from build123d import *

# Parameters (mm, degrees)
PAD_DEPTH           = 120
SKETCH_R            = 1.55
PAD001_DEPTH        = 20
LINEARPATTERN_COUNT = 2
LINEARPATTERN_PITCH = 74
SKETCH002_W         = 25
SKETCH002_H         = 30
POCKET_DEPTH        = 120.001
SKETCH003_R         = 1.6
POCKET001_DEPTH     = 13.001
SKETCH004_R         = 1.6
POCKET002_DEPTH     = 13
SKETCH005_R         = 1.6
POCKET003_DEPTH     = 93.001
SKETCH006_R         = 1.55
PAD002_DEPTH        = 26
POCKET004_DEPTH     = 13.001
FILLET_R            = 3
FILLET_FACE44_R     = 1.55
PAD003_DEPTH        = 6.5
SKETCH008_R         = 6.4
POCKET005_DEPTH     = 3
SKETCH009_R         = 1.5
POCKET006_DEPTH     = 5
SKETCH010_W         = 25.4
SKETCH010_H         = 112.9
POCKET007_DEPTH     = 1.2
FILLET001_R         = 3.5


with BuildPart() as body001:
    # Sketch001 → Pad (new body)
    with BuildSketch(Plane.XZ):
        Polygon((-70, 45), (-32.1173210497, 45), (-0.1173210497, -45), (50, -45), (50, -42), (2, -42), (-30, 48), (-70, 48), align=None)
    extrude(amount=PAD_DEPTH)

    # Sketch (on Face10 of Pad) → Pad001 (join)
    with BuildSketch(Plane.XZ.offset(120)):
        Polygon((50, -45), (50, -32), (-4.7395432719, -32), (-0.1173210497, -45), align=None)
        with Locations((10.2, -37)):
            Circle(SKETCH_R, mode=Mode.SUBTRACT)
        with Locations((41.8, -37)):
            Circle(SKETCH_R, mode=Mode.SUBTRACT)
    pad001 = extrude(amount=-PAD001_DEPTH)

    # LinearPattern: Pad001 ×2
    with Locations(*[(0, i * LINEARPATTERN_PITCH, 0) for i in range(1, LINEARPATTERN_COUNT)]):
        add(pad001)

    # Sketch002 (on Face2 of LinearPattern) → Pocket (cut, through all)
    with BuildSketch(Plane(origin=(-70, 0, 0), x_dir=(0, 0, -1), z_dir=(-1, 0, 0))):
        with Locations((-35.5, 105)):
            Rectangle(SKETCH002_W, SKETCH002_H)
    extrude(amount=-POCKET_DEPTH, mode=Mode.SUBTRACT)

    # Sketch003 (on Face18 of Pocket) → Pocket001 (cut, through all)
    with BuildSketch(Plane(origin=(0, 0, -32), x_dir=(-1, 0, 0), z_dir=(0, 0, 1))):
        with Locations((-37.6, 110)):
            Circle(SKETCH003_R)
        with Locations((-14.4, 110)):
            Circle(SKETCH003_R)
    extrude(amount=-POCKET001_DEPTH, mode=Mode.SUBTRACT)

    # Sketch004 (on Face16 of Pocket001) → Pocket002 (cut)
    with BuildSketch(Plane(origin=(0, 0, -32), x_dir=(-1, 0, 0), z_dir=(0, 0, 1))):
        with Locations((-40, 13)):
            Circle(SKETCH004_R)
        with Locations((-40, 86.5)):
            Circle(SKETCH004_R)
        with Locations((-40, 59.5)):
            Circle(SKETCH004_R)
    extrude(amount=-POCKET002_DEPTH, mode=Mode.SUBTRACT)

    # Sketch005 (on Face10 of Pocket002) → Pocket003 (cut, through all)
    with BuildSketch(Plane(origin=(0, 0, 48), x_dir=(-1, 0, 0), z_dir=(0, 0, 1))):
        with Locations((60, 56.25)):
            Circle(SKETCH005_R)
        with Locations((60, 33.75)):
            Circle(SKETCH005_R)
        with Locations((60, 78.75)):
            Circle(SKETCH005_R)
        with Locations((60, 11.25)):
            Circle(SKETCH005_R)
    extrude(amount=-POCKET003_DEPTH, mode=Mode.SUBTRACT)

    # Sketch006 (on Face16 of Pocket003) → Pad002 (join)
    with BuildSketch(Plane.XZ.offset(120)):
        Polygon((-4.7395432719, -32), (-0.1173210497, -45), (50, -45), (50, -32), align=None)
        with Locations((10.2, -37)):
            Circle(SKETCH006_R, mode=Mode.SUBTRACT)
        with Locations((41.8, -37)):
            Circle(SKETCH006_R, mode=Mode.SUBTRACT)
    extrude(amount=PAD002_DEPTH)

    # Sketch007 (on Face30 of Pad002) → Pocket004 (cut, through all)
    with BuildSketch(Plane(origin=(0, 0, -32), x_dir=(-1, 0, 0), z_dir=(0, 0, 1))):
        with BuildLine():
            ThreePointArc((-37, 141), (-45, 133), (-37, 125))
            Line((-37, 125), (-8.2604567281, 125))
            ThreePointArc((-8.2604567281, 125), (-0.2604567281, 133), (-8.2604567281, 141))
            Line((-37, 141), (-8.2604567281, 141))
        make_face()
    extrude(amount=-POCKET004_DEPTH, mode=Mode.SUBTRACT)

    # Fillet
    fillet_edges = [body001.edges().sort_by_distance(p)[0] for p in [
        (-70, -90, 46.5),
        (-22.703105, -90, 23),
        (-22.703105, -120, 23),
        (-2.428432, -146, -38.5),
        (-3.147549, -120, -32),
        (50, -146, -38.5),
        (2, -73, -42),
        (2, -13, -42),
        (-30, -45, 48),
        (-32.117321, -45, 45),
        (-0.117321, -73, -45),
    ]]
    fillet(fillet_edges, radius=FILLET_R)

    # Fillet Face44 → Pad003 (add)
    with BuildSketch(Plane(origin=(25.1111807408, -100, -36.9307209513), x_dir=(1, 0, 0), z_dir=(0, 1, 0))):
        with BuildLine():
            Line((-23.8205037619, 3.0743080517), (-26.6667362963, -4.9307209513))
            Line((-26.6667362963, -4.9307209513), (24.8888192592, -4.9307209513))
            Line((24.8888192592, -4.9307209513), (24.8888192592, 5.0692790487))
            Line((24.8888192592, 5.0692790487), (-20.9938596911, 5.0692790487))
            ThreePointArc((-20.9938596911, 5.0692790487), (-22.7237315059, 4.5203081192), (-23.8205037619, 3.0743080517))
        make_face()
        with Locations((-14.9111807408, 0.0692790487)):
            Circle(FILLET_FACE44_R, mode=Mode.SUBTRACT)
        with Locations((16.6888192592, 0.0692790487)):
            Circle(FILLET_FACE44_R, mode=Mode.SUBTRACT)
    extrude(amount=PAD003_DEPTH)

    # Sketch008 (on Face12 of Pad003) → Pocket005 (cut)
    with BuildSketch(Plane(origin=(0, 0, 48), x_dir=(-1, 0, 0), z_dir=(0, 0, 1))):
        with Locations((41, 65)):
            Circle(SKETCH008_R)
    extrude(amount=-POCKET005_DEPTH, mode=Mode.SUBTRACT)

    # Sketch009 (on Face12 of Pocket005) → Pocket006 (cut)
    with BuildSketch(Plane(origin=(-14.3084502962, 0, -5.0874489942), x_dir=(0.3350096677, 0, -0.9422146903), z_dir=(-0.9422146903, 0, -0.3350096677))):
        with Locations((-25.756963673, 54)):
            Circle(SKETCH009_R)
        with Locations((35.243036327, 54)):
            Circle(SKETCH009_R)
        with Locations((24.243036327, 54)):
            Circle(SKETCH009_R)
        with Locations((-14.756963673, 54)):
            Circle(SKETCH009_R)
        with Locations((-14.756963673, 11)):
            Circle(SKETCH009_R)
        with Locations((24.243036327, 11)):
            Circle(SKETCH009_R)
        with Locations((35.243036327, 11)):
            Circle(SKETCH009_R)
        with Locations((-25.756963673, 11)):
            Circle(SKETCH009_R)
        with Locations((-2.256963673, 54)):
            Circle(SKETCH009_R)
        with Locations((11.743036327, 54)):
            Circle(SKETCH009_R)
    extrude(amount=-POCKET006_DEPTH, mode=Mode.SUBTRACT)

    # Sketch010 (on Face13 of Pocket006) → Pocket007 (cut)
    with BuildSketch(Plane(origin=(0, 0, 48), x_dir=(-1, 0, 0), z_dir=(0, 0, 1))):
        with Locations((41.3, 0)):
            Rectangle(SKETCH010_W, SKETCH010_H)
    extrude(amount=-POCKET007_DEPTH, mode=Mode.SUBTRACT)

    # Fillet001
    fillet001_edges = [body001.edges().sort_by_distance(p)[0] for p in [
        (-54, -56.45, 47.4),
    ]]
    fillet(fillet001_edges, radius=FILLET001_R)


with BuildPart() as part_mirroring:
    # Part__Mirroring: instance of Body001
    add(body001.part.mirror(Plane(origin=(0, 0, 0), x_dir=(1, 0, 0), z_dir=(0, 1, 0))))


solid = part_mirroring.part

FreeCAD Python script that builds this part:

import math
import FreeCAD as App
import Part
import Sketcher

V = App.Vector


def edges_at(feature, points):
    """Names of the edges that pass closest to the given points."""
    edges = feature.Shape.Edges
    near = lambda p: min(range(len(edges)), key=lambda i: edges[i].distToShape(Part.Vertex(*p))[0])
    return sorted({f"Edge{near(p) + 1}" for p in points})

doc = App.newDocument("Part")
body = doc.addObject("PartDesign::Body", "Body")

# Sketch on XZ plane
sketch1 = body.newObject("Sketcher::SketchObject", "Sketch")
sketch1.AttachmentSupport = (doc.getObject("XZ_Plane"), [""])
sketch1.MapMode = "FlatFace"
sketch1.addGeometry([
    Part.LineSegment(V(-70, 45, 0), V(-32.117321, 45, 0)),  # 0
    Part.LineSegment(V(-32.117321, 45, 0), V(-0.117321, -45, 0)),  # 1
    Part.LineSegment(V(-0.117321, -45, 0), V(50, -45, 0)),  # 2
    Part.LineSegment(V(50, -45, 0), V(50, -42, 0)),  # 3
    Part.LineSegment(V(50, -42, 0), V(2, -42, 0)),  # 4
    Part.LineSegment(V(2, -42, 0), V(-30, 48, 0)),  # 5
    Part.LineSegment(V(-30, 48, 0), V(-70, 48, 0)),  # 6
    Part.LineSegment(V(-70, 48, 0), V(-70, 45, 0)),  # 7
], False)
sketch1.addConstraint([
    Sketcher.Constraint("Coincident", 0, 2, 1, 1),
    Sketcher.Constraint("Coincident", 1, 2, 2, 1),
    Sketcher.Constraint("Coincident", 2, 2, 3, 1),
    Sketcher.Constraint("Coincident", 3, 2, 4, 1),
    Sketcher.Constraint("Coincident", 4, 2, 5, 1),
    Sketcher.Constraint("Coincident", 5, 2, 6, 1),
    Sketcher.Constraint("Coincident", 6, 2, 7, 1),
    Sketcher.Constraint("Coincident", 7, 2, 0, 1),
    Sketcher.Constraint("Horizontal", 0),
    Sketcher.Constraint("Horizontal", 2),
    Sketcher.Constraint("Vertical", 3),
    Sketcher.Constraint("Horizontal", 4),
    Sketcher.Constraint("Horizontal", 6),
    Sketcher.Constraint("Vertical", 7),
    Sketcher.Constraint("Parallel", 1, 5),
    Sketcher.Constraint("Equal", 3, 7),
    Sketcher.Constraint("DistanceX", 4, 2, 4, 1, 48.0),
    Sketcher.Constraint("DistanceX", 6, 2, 6, 1, 40.0),
    Sketcher.Constraint("DistanceY", 3, 1, 3, 2, 3.0),
    Sketcher.Constraint("DistanceY", -1, 1, 0, 2, 45.0),
    Sketcher.Constraint("DistanceY", 1, 2, -1, 1, 45.0),
    Sketcher.Constraint("DistanceX", -1, 1, 2, 2, 50.0),
    Sketcher.Constraint("DistanceX", 5, 2, -1, 1, 30.0),
    Sketcher.Constraint("DistanceX", 0, 1, 0, 2, 37.882679),
])
pad1 = body.newObject("PartDesign::Pad", "Pad")
pad1.Profile = sketch1
pad1.Length = 120

# Sketch on XZ plane
sketch2 = body.newObject("Sketcher::SketchObject", "Sketch001")
sketch2.AttachmentSupport = (doc.getObject("XZ_Plane"), [""])
sketch2.MapMode = "FlatFace"
sketch2.AttachmentOffset = App.Placement(V(0, 0, 120), App.Rotation())
sketch2.addGeometry([
    Part.LineSegment(V(50, -45, 0), V(50, -32, 0)),  # 0
    Part.LineSegment(V(50, -32, 0), V(-4.739543, -32, 0)),  # 1
    Part.LineSegment(V(-4.739543, -32, 0), V(-0.117321, -45, 0)),  # 2
    Part.LineSegment(V(-0.117321, -45, 0), V(50, -45, 0)),  # 3
    Part.Circle(V(10.2, -37, 0), V(0, 0, 1), 1.55),  # 4
    Part.Circle(V(41.8, -37, 0), V(0, 0, 1), 1.55),  # 5
], False)
sketch2.addConstraint([
    Sketcher.Constraint("Coincident", 0, 2, 1, 1),
    Sketcher.Constraint("Coincident", 1, 2, 2, 1),
    Sketcher.Constraint("Coincident", 2, 2, 3, 1),
    Sketcher.Constraint("Coincident", 3, 2, 0, 1),
    Sketcher.Constraint("Vertical", 0),
    Sketcher.Constraint("Horizontal", 1),
    Sketcher.Constraint("Horizontal", 3),
    Sketcher.Constraint("Equal", 4, 5),
    Sketcher.Constraint("Horizontal", 4, 3, 5, 3),
    Sketcher.Constraint("Diameter", 4, 3.1),
    Sketcher.Constraint("DistanceY", 0, 1, 0, 2, 13.0),
    Sketcher.Constraint("DistanceY", 4, 3, -1, 1, 37.0),
    Sketcher.Constraint("DistanceX", -1, 1, 0, 2, 50.0),
    Sketcher.Constraint("DistanceY", 0, 2, -1, 1, 32.0),
    Sketcher.Constraint("DistanceX", -1, 1, 4, 3, 10.2),
    Sketcher.Constraint("DistanceX", -1, 1, 5, 3, 41.8),
    Sketcher.Constraint("DistanceX", 3, 1, 3, 2, 50.117321),
    Sketcher.Constraint("Distance", 2, 13.79728),
])
pad2 = body.newObject("PartDesign::Pad", "Pad001")
pad2.Profile = sketch2
pad2.Length = 20
pad2.Reversed = True
doc.recompute()

linearpattern = body.newObject("PartDesign::LinearPattern", "LinearPattern")
linearpattern.Originals = [pad2]
linearpattern.Direction = (doc.getObject("Y_Axis"), [""])
linearpattern.Mode = "offset"
linearpattern.Offset = 74
linearpattern.Occurrences = 2
body.Tip = linearpattern

# Sketch on YZ plane
sketch3 = body.newObject("Sketcher::SketchObject", "Sketch002")
sketch3.AttachmentSupport = (doc.getObject("YZ_Plane"), [""])
sketch3.MapMode = "FlatFace"
sketch3.AttachmentOffset = App.Placement(V(0, 0, -70), App.Rotation())
sketch3.addGeometry([
    Part.LineSegment(V(-120, 48, 0), V(-90, 48, 0)),
    Part.LineSegment(V(-90, 48, 0), V(-90, 23, 0)),
    Part.LineSegment(V(-90, 23, 0), V(-120, 23, 0)),
    Part.LineSegment(V(-120, 23, 0), V(-120, 48, 0)),
], False)
sketch3.addConstraint([
    Sketcher.Constraint("Coincident", 0, 2, 1, 1),
    Sketcher.Constraint("Coincident", 1, 2, 2, 1),
    Sketcher.Constraint("Coincident", 2, 2, 3, 1),
    Sketcher.Constraint("Coincident", 3, 2, 0, 1),
    Sketcher.Constraint("Horizontal", 0),
    Sketcher.Constraint("Vertical", 1),
    Sketcher.Constraint("Horizontal", 2),
    Sketcher.Constraint("Vertical", 3),
    Sketcher.Constraint("DistanceX", 0, 1, 0, 2, 30.0),
    Sketcher.Constraint("DistanceY", 1, 2, 1, 1, 25.0),
    Sketcher.Constraint("DistanceX", 0, 2, -1, 1, 90.0),
    Sketcher.Constraint("DistanceY", -1, 1, 0, 2, 48.0),
])
pocket1 = body.newObject("PartDesign::Pocket", "Pocket")
pocket1.Profile = sketch3
pocket1.Type = "ThroughAll"
pocket1.Reversed = True

# Sketch on XY plane
sketch4 = body.newObject("Sketcher::SketchObject", "Sketch003")
sketch4.AttachmentSupport = (doc.getObject("XY_Plane"), [""])
sketch4.MapMode = "FlatFace"
sketch4.AttachmentOffset = App.Placement(V(0, 0, -32), App.Rotation())
sketch4.addGeometry([
    Part.Circle(V(37.6, -110, 0), V(0, 0, 1), 1.6),
    Part.Circle(V(14.4, -110, 0), V(0, 0, 1), 1.6),
], False)
sketch4.addConstraint([
    Sketcher.Constraint("Equal", 0, 1),
    Sketcher.Constraint("Horizontal", 0, 3, 1, 3),
    Sketcher.Constraint("Diameter", 0, 3.2),
    Sketcher.Constraint("DistanceY", 0, 3, -1, 1, 110.0),
    Sketcher.Constraint("DistanceX", -1, 1, 0, 3, 37.6),
    Sketcher.Constraint("DistanceX", -1, 1, 1, 3, 14.4),
])
pocket2 = body.newObject("PartDesign::Pocket", "Pocket001")
pocket2.Profile = sketch4
pocket2.Type = "ThroughAll"

# Sketch on XY plane
sketch5 = body.newObject("Sketcher::SketchObject", "Sketch004")
sketch5.AttachmentSupport = (doc.getObject("XY_Plane"), [""])
sketch5.MapMode = "FlatFace"
sketch5.AttachmentOffset = App.Placement(V(0, 0, -32), App.Rotation())
sketch5.addGeometry([
    Part.Circle(V(40, -13, 0), V(0, 0, 1), 1.6),
    Part.Circle(V(40, -86.5, 0), V(0, 0, 1), 1.6),
    Part.Circle(V(40, -59.5, 0), V(0, 0, 1), 1.6),
], False)
sketch5.addConstraint([
    Sketcher.Constraint("Equal", 0, 1),
    Sketcher.Constraint("Equal", 1, 2),
    Sketcher.Constraint("Vertical", 0, 3, 1, 3),
    Sketcher.Constraint("Vertical", 1, 3, 2, 3),
    Sketcher.Constraint("Diameter", 0, 3.2),
    Sketcher.Constraint("DistanceX", -1, 1, 0, 3, 40.0),
    Sketcher.Constraint("DistanceY", 0, 3, -1, 1, 13.0),
    Sketcher.Constraint("DistanceY", 1, 3, 2, 3, 27.0),
    Sketcher.Constraint("DistanceY", 1, 3, -1, 1, 86.5),
])
pocket3 = body.newObject("PartDesign::Pocket", "Pocket002")
pocket3.Profile = sketch5
pocket3.Length = 13

# Sketch on XY plane
sketch6 = body.newObject("Sketcher::SketchObject", "Sketch005")
sketch6.AttachmentSupport = (doc.getObject("XY_Plane"), [""])
sketch6.MapMode = "FlatFace"
sketch6.AttachmentOffset = App.Placement(V(0, 0, 48), App.Rotation())
sketch6.addGeometry([
    Part.Circle(V(-60, -56.25, 0), V(0, 0, 1), 1.6),
    Part.Circle(V(-60, -33.75, 0), V(0, 0, 1), 1.6),
    Part.Circle(V(-60, -78.75, 0), V(0, 0, 1), 1.6),
    Part.Circle(V(-60, -11.25, 0), V(0, 0, 1), 1.6),
], False)
sketch6.addConstraint([
    Sketcher.Constraint("Equal", 0, 1),
    Sketcher.Constraint("Equal", 1, 2),
    Sketcher.Constraint("Equal", 2, 3),
    Sketcher.Constraint("Vertical", 0, 3, 1, 3),
    Sketcher.Constraint("Vertical", 1, 3, 2, 3),
    Sketcher.Constraint("Vertical", 2, 3, 3, 3),
    Sketcher.Constraint("Diameter", 0, 3.2),
    Sketcher.Constraint("DistanceX", 0, 3, -1, 1, 60.0),
    Sketcher.Constraint("DistanceY", 2, 3, 1, 3, 45.0),
    Sketcher.Constraint("DistanceY", 0, 3, 3, 3, 45.0),
    Sketcher.Constraint("DistanceY", 0, 3, 1, 3, 22.5),
    Sketcher.Constraint("DistanceY", 0, 3, -1, 1, 56.25),
])
pocket4 = body.newObject("PartDesign::Pocket", "Pocket003")
pocket4.Profile = sketch6
pocket4.Type = "ThroughAll"

# Sketch on XZ plane
sketch7 = body.newObject("Sketcher::SketchObject", "Sketch006")
sketch7.AttachmentSupport = (doc.getObject("XZ_Plane"), [""])
sketch7.MapMode = "FlatFace"
sketch7.AttachmentOffset = App.Placement(V(0, 0, 120), App.Rotation())
sketch7.addGeometry([
    Part.LineSegment(V(-4.739543, -32, 0), V(-0.117321, -45, 0)),  # 0
    Part.LineSegment(V(-0.117321, -45, 0), V(50, -45, 0)),  # 1
    Part.LineSegment(V(50, -45, 0), V(50, -32, 0)),  # 2
    Part.LineSegment(V(50, -32, 0), V(-4.739543, -32, 0)),  # 3
    Part.Circle(V(10.2, -37, 0), V(0, 0, 1), 1.55),  # 4
    Part.Circle(V(41.8, -37, 0), V(0, 0, 1), 1.55),  # 5
], False)
sketch7.addConstraint([
    Sketcher.Constraint("Coincident", 0, 2, 1, 1),
    Sketcher.Constraint("Coincident", 1, 2, 2, 1),
    Sketcher.Constraint("Coincident", 2, 2, 3, 1),
    Sketcher.Constraint("Coincident", 3, 2, 0, 1),
    Sketcher.Constraint("Horizontal", 1),
    Sketcher.Constraint("Vertical", 2),
    Sketcher.Constraint("Horizontal", 3),
    Sketcher.Constraint("Equal", 4, 5),
    Sketcher.Constraint("Horizontal", 4, 3, 5, 3),
    Sketcher.Constraint("Diameter", 4, 3.1),
    Sketcher.Constraint("DistanceY", 2, 1, 2, 2, 13.0),
    Sketcher.Constraint("DistanceY", 4, 3, -1, 1, 37.0),
    Sketcher.Constraint("DistanceY", 0, 2, -1, 1, 45.0),
    Sketcher.Constraint("DistanceX", -1, 1, 1, 2, 50.0),
    Sketcher.Constraint("DistanceX", -1, 1, 4, 3, 10.2),
    Sketcher.Constraint("DistanceX", -1, 1, 5, 3, 41.8),
    Sketcher.Constraint("DistanceX", 1, 1, 1, 2, 50.117321),
    Sketcher.Constraint("Distance", 0, 13.79728),
])
pad3 = body.newObject("PartDesign::Pad", "Pad002")
pad3.Profile = sketch7
pad3.Length = 26

# Sketch on XY plane
sketch8 = body.newObject("Sketcher::SketchObject", "Sketch007")
sketch8.AttachmentSupport = (doc.getObject("XY_Plane"), [""])
sketch8.MapMode = "FlatFace"
sketch8.AttachmentOffset = App.Placement(V(0, 0, -32), App.Rotation())
sketch8.addGeometry([
    Part.ArcOfCircle(Part.Circle(V(37, -133, 0), V(0, 0, 1), 8), math.radians(-90), math.radians(90)),
    Part.LineSegment(V(37, -125, 0), V(8.260457, -125, 0)),
    Part.ArcOfCircle(Part.Circle(V(8.260457, -133, 0), V(0, 0, 1), 8), math.radians(90), math.radians(270)),
    Part.LineSegment(V(8.260457, -141, 0), V(37, -141, 0)),
], False)
sketch8.addConstraint([
    Sketcher.Constraint("Tangent", 0, 2, 1, 1),
    Sketcher.Constraint("Tangent", 1, 2, 2, 1),
    Sketcher.Constraint("Tangent", 2, 2, 3, 1),
    Sketcher.Constraint("Tangent", 3, 2, 0, 1),
    Sketcher.Constraint("Horizontal", 1),
    Sketcher.Constraint("Horizontal", 3),
    Sketcher.Constraint("Radius", 0, 8.0),
    Sketcher.Constraint("DistanceX", -1, 1, 0, 3, 37.0),
    Sketcher.Constraint("DistanceY", 0, 3, -1, 1, 133.0),
    Sketcher.Constraint("DistanceX", 1, 2, 1, 1, 28.739543),
])
pocket5 = body.newObject("PartDesign::Pocket", "Pocket004")
pocket5.Profile = sketch8
pocket5.Type = "ThroughAll"
doc.recompute()

fillet = body.newObject("PartDesign::Fillet", "Fillet")
fillet.Base = (pocket5, edges_at(pocket5, [
    (-70, -90, 46.5),
    (-22.703, -90, 23),
    (-22.703, -120, 23),
    (-2.428, -146, -38.5),
    (-3.148, -120, -32),
    (50, -146, -38.5),
    (2, -73, -42),
    (2, -13, -42),
    (-30, -45, 48),
    (-32.117, -45, 45),
    (-0.117, -83, -45),
]))
fillet.Radius = 3

# Sketch on XZ plane
sketch9 = body.newObject("Sketcher::SketchObject", "Sketch008")
sketch9.AttachmentSupport = (doc.getObject("XZ_Plane"), [""])
sketch9.MapMode = "FlatFace"
sketch9.AttachmentOffset = App.Placement(V(0, 0, 100), App.Rotation())
sketch9.addGeometry([
    Part.LineSegment(V(1.290677, -40.005029, 0), V(-1.555556, -32, 0)),  # 0
    Part.LineSegment(V(-1.555556, -32, 0), V(50, -32, 0)),  # 1
    Part.LineSegment(V(50, -32, 0), V(50, -42, 0)),  # 2
    Part.LineSegment(V(50, -42, 0), V(4.117321, -42, 0)),  # 3
    Part.ArcOfCircle(Part.Circle(V(4.117321, -39, 0), V(0, 0, 1), 3), math.radians(-160.426874), math.radians(-90)),  # 4
    Part.Circle(V(10.2, -37, 0), V(0, 0, 1), 1.55),  # 5
    Part.Circle(V(41.8, -37, 0), V(0, 0, 1), 1.55),  # 6
], False)
sketch9.addConstraint([
    Sketcher.Constraint("Coincident", 0, 2, 1, 1),
    Sketcher.Constraint("Coincident", 1, 2, 2, 1),
    Sketcher.Constraint("Coincident", 2, 2, 3, 1),
    Sketcher.Constraint("Tangent", 3, 2, 4, 2),
    Sketcher.Constraint("Tangent", 4, 1, 0, 1),
    Sketcher.Constraint("Horizontal", 1),
    Sketcher.Constraint("Vertical", 2),
    Sketcher.Constraint("Horizontal", 3),
    Sketcher.Constraint("Equal", 5, 6),
    Sketcher.Constraint("Horizontal", 5, 3, 6, 3),
    Sketcher.Constraint("Radius", 4, 3.0),
    Sketcher.Constraint("Diameter", 5, 3.1),
    Sketcher.Constraint("DistanceY", 2, 2, 2, 1, 10.0),
    Sketcher.Constraint("DistanceY", 4, 3, -1, 1, 39.0),
    Sketcher.Constraint("DistanceY", 5, 3, -1, 1, 37.0),
    Sketcher.Constraint("DistanceX", -1, 1, 1, 2, 50.0),
    Sketcher.Constraint("DistanceX", -1, 1, 5, 3, 10.2),
    Sketcher.Constraint("DistanceX", -1, 1, 6, 3, 41.8),
    Sketcher.Constraint("DistanceX", 3, 2, 3, 1, 45.882679),
    Sketcher.Constraint("Distance", 0, 8.495971),
])
pad4 = body.newObject("PartDesign::Pad", "Pad003")
pad4.Profile = sketch9
pad4.Length = 6.5
pad4.Reversed = True

# Sketch on XY plane
sketch10 = body.newObject("Sketcher::SketchObject", "Sketch009")
sketch10.AttachmentSupport = (doc.getObject("XY_Plane"), [""])
sketch10.MapMode = "FlatFace"
sketch10.AttachmentOffset = App.Placement(V(0, 0, 48), App.Rotation())
sketch10.addGeometry(Part.Circle(V(-41, -65, 0), V(0, 0, 1), 6.4), False)
sketch10.addConstraint([
    Sketcher.Constraint("Diameter", 0, 12.8),
    Sketcher.Constraint("DistanceX", 0, 3, -1, 1, 41.0),
    Sketcher.Constraint("DistanceY", 0, 3, -1, 1, 65.0),
])
pocket6 = body.newObject("PartDesign::Pocket", "Pocket005")
pocket6.Profile = sketch10
pocket6.Length = 3

# Sketch on an angled plane
sketch11 = body.newObject("Sketcher::SketchObject", "Sketch010")
sketch11.Placement = App.Placement(V(-14.30845, 0, -5.087449), App.Rotation(V(0.335009668, 0, -0.94221469), V(0, -1, 0), V(-0.94221469, 0, -0.335009668), "ZXY"))
sketch11.addGeometry([
    Part.Circle(V(-25.756964, 54, 0), V(0, 0, 1), 1.5),  # 0
    Part.Circle(V(35.243036, 54, 0), V(0, 0, 1), 1.5),  # 1
    Part.Circle(V(24.243036, 54, 0), V(0, 0, 1), 1.5),  # 2
    Part.Circle(V(-14.756964, 54, 0), V(0, 0, 1), 1.5),  # 3
    Part.Circle(V(-14.756964, 11, 0), V(0, 0, 1), 1.5),  # 4
    Part.Circle(V(24.243036, 11, 0), V(0, 0, 1), 1.5),  # 5
    Part.Circle(V(35.243036, 11, 0), V(0, 0, 1), 1.5),  # 6
    Part.Circle(V(-25.756964, 11, 0), V(0, 0, 1), 1.5),  # 7
    Part.Circle(V(-2.256964, 54, 0), V(0, 0, 1), 1.5),  # 8
    Part.Circle(V(11.743036, 54, 0), V(0, 0, 1), 1.5),  # 9
], False)
sketch11.addConstraint([
    Sketcher.Constraint("Equal", 0, 1),
    Sketcher.Constraint("Equal", 1, 2),
    Sketcher.Constraint("Equal", 2, 3),
    Sketcher.Constraint("Equal", 3, 4),
    Sketcher.Constraint("Equal", 4, 5),
    Sketcher.Constraint("Equal", 5, 6),
    Sketcher.Constraint("Equal", 6, 7),
    Sketcher.Constraint("Equal", 7, 8),
    Sketcher.Constraint("Equal", 8, 9),
    Sketcher.Constraint("Horizontal", 0, 3, 1, 3),
    Sketcher.Constraint("Horizontal", 1, 3, 2, 3),
    Sketcher.Constraint("Horizontal", 2, 3, 3, 3),
    Sketcher.Constraint("Horizontal", 4, 3, 5, 3),
    Sketcher.Constraint("Horizontal", 5, 3, 6, 3),
    Sketcher.Constraint("Horizontal", 6, 3, 7, 3),
    Sketcher.Constraint("Horizontal", 3, 3, 8, 3),
    Sketcher.Constraint("Horizontal", 8, 3, 9, 3),
    Sketcher.Constraint("Vertical", 3, 3, 4, 3),
    Sketcher.Constraint("Vertical", 2, 3, 5, 3),
    Sketcher.Constraint("Vertical", 1, 3, 6, 3),
    Sketcher.Constraint("Vertical", 0, 3, 7, 3),
    Sketcher.Constraint("Diameter", 0, 3.0),
    Sketcher.Constraint("DistanceY", -1, 1, 0, 3, 54.0),
    Sketcher.Constraint("DistanceY", -1, 1, 4, 3, 11.0),
    Sketcher.Constraint("DistanceX", 0, 3, 1, 3, 61.0),
    Sketcher.Constraint("DistanceX", 2, 3, 1, 3, 11.0),
    Sketcher.Constraint("DistanceX", 0, 3, 3, 3, 11.0),
    Sketcher.Constraint("DistanceX", 8, 3, 9, 3, 14.0),
    Sketcher.Constraint("DistanceX", 3, 3, 8, 3, 12.5),
    Sketcher.Constraint("DistanceX", 0, 3, -1, 1, 25.756964),
])
pocket7 = body.newObject("PartDesign::Pocket", "Pocket006")
pocket7.Profile = sketch11
pocket7.Length = 5

# Sketch on XY plane
sketch12 = body.newObject("Sketcher::SketchObject", "Sketch011")
sketch12.AttachmentSupport = (doc.getObject("XY_Plane"), [""])
sketch12.MapMode = "FlatFace"
sketch12.AttachmentOffset = App.Placement(V(0, 0, 48), App.Rotation())
sketch12.addGeometry([
    Part.LineSegment(V(-28.6, -56.45, 0), V(-28.6, 56.45, 0)),
    Part.LineSegment(V(-28.6, 56.45, 0), V(-54, 56.45, 0)),
    Part.LineSegment(V(-54, 56.45, 0), V(-54, -56.45, 0)),
    Part.LineSegment(V(-54, -56.45, 0), V(-28.6, -56.45, 0)),
], False)
sketch12.addConstraint([
    Sketcher.Constraint("Coincident", 0, 2, 1, 1),
    Sketcher.Constraint("Coincident", 1, 2, 2, 1),
    Sketcher.Constraint("Coincident", 2, 2, 3, 1),
    Sketcher.Constraint("Coincident", 3, 2, 0, 1),
    Sketcher.Constraint("Vertical", 0),
    Sketcher.Constraint("Horizontal", 1),
    Sketcher.Constraint("Vertical", 2),
    Sketcher.Constraint("Horizontal", 3),
    Sketcher.Constraint("DistanceX", 1, 2, 1, 1, 25.4),
    Sketcher.Constraint("DistanceY", 0, 1, 0, 2, 112.9),
    Sketcher.Constraint("DistanceX", 1, 2, -1, 1, 54.0),
    Sketcher.Constraint("DistanceY", -1, 1, 0, 2, 56.45),
])
pocket8 = body.newObject("PartDesign::Pocket", "Pocket007")
pocket8.Profile = sketch12
pocket8.Length = 1.2
doc.recompute()

fillet2 = body.newObject("PartDesign::Fillet", "Fillet001")
fillet2.Base = (pocket8, edges_at(pocket8, [(-54, -56.45, 47.4)]))
fillet2.Radius = 3.5
body2 = doc.addObject("PartDesign::Body", "Body001")
doc.recompute()

mirroring = doc.addObject("Part::Mirroring", "Mirroring")
mirroring.Source = body
mirroring.Base = V(0, 0, 0)
mirroring.Normal = V(0, 1, 0)
body2.BaseFeature = mirroring
doc.recompute()
body.Visibility = False
mirroring.Visibility = False

doc.recompute()
